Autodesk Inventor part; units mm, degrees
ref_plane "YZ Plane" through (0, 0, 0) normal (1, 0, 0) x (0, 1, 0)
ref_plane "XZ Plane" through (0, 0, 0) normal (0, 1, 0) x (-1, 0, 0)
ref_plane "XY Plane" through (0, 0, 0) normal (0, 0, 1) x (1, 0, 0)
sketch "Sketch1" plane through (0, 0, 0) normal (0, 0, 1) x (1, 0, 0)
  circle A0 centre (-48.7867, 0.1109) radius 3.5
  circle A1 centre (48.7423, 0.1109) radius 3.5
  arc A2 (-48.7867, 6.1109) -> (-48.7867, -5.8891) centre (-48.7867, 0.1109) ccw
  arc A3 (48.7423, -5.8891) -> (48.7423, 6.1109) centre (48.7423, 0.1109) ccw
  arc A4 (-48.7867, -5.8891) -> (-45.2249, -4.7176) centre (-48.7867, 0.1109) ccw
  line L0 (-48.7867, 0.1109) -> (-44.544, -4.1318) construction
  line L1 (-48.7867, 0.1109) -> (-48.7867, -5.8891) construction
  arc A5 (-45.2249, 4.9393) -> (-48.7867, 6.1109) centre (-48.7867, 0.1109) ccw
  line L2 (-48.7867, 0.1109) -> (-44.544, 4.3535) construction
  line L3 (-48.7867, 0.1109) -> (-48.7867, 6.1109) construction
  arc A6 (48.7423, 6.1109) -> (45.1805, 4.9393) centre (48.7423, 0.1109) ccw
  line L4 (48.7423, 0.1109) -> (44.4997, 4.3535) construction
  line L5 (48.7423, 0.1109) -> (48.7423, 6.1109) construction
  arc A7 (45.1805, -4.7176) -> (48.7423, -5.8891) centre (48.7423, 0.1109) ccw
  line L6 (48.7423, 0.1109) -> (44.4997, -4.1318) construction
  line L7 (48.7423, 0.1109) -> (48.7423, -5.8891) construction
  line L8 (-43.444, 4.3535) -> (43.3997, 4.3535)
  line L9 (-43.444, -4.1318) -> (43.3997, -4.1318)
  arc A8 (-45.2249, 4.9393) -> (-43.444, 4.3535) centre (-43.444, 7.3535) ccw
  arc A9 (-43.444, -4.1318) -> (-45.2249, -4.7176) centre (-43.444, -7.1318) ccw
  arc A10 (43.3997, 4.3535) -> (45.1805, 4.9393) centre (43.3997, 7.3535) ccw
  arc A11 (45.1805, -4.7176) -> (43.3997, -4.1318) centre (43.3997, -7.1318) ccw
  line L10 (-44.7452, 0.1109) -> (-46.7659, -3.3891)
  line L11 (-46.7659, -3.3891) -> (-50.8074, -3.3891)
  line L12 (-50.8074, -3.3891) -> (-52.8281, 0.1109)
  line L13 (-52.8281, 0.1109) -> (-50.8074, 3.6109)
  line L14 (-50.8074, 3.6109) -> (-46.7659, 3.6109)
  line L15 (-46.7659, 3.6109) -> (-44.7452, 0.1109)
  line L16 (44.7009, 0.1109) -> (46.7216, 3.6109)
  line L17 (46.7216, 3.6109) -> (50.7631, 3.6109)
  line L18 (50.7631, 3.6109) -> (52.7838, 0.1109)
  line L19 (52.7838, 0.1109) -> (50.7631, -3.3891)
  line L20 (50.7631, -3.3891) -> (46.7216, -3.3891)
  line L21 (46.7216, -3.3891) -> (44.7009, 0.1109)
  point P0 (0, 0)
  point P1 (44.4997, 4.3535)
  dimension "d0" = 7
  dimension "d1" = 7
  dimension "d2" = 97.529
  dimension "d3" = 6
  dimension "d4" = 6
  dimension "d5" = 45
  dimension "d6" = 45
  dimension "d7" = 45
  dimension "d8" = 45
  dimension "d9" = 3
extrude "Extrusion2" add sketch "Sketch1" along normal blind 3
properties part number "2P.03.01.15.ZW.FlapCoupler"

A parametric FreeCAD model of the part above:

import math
import FreeCAD as App
import Part
import Sketcher

V = App.Vector
Q = App.Units.Quantity

doc = App.newDocument("Part")
body = doc.addObject("PartDesign::Body", "Body")

# Sketch on XY plane
sketch1 = body.newObject("Sketcher::SketchObject", "Sketch")
sketch1.AttachmentSupport = (doc.getObject("XY_Plane"), [""])
sketch1.MapMode = "FlatFace"
sketch1.addGeometry(Part.ArcOfCircle(Part.Circle(V(-48.8, 0.1, 0), V(0, 0, 1), 6), math.radians(54), math.radians(90)), False)
sketch1.addGeometry(Part.ArcOfCircle(Part.Circle(V(-48.8, 0.1, 0), V(0, 0, 1), 6), math.radians(90), math.radians(270)), False)
sketch1.addGeometry(Part.ArcOfCircle(Part.Circle(V(-48.8, 0.1, 0), V(0, 0, 1), 6), math.radians(-90), math.radians(-54)), False)
sketch1.addGeometry(Part.ArcOfCircle(Part.Circle(V(-43.4, -7.1, 0), V(0, 0, 1), 3), math.radians(90), math.radians(126)), False)
sketch1.addGeometry(Part.LineSegment(V(-43.4, -4.1, 0), V(43.4, -4.1, 0)), False)
sketch1.addGeometry(Part.ArcOfCircle(Part.Circle(V(43.4, -7.1, 0), V(0, 0, 1), 3), math.radians(54), math.radians(90)), False)
sketch1.addGeometry(Part.ArcOfCircle(Part.Circle(V(48.7, 0.1, 0), V(0, 0, 1), 6), math.radians(-126), math.radians(-90)), False)
sketch1.addGeometry(Part.ArcOfCircle(Part.Circle(V(48.7, 0.1, 0), V(0, 0, 1), 6), math.radians(-90), math.radians(90)), False)
sketch1.addGeometry(Part.ArcOfCircle(Part.Circle(V(48.7, 0.1, 0), V(0, 0, 1), 6), math.radians(90), math.radians(126)), False)
sketch1.addGeometry(Part.ArcOfCircle(Part.Circle(V(43.4, 7.4, 0), V(0, 0, 1), 3), math.radians(-90), math.radians(-54)), False)
sketch1.addGeometry(Part.LineSegment(V(43.4, 4.4, 0), V(-43.4, 4.4, 0)), False)
sketch1.addGeometry(Part.ArcOfCircle(Part.Circle(V(-43.4, 7.4, 0), V(0, 0, 1), 3), math.radians(-126), math.radians(-90)), False)
sketch1.addGeometry(Part.LineSegment(V(-46.8, 3.6, 0), V(-44.7, 0.1, 0)), False)
sketch1.addGeometry(Part.LineSegment(V(-44.7, 0.1, 0), V(-46.8, -3.4, 0)), False)
sketch1.addGeometry(Part.LineSegment(V(-46.8, -3.4, 0), V(-50.8, -3.4, 0)), False)
sketch1.addGeometry(Part.LineSegment(V(-50.8, -3.4, 0), V(-52.8, 0.1, 0)), False)
sketch1.addGeometry(Part.LineSegment(V(-52.8, 0.1, 0), V(-50.8, 3.6, 0)), False)
sketch1.addGeometry(Part.LineSegment(V(-50.8, 3.6, 0), V(-46.8, 3.6, 0)), False)
sketch1.addGeometry(Part.LineSegment(V(50.8, 3.6, 0), V(52.8, 0.1, 0)), False)
sketch1.addGeometry(Part.LineSegment(V(52.8, 0.1, 0), V(50.8, -3.4, 0)), False)
sketch1.addGeometry(Part.LineSegment(V(50.8, -3.4, 0), V(46.7, -3.4, 0)), False)
sketch1.addGeometry(Part.LineSegment(V(46.7, -3.4, 0), V(44.7, 0.1, 0)), False)
sketch1.addGeometry(Part.LineSegment(V(44.7, 0.1, 0), V(46.7, 3.6, 0)), False)
sketch1.addGeometry(Part.LineSegment(V(46.7, 3.6, 0), V(50.8, 3.6, 0)), False)
sketch1.addConstraint(Sketcher.Constraint("Tangent", 0, 2, 1, 1))
sketch1.addConstraint(Sketcher.Constraint("Tangent", 1, 2, 2, 1))
sketch1.addConstraint(Sketcher.Constraint("Tangent", 2, 2, 3, 2))
sketch1.addConstraint(Sketcher.Constraint("Tangent", 3, 1, 4, 1))
sketch1.addConstraint(Sketcher.Constraint("Tangent", 4, 2, 5, 2))
sketch1.addConstraint(Sketcher.Constraint("Tangent", 5, 1, 6, 1))
sketch1.addConstraint(Sketcher.Constraint("Tangent", 6, 2, 7, 1))
sketch1.addConstraint(Sketcher.Constraint("Tangent", 7, 2, 8, 1))
sketch1.addConstraint(Sketcher.Constraint("Tangent", 8, 2, 9, 2))
sketch1.addConstraint(Sketcher.Constraint("Tangent", 9, 1, 10, 1))
sketch1.addConstraint(Sketcher.Constraint("Tangent", 10, 2, 11, 2))
sketch1.addConstraint(Sketcher.Constraint("Tangent", 11, 1, 0, 1))
sketch1.addConstraint(Sketcher.Constraint("Coincident", 12, 2, 13, 1))
sketch1.addConstraint(Sketcher.Constraint("Coincident", 13, 2, 14, 1))
sketch1.addConstraint(Sketcher.Constraint("Coincident", 14, 2, 15, 1))
sketch1.addConstraint(Sketcher.Constraint("Coincident", 15, 2, 16, 1))
sketch1.addConstraint(Sketcher.Constraint("Coincident", 16, 2, 17, 1))
sketch1.addConstraint(Sketcher.Constraint("Coincident", 17, 2, 12, 1))
sketch1.addConstraint(Sketcher.Constraint("Coincident", 18, 2, 19, 1))
sketch1.addConstraint(Sketcher.Constraint("Coincident", 19, 2, 20, 1))
sketch1.addConstraint(Sketcher.Constraint("Coincident", 20, 2, 21, 1))
sketch1.addConstraint(Sketcher.Constraint("Coincident", 21, 2, 22, 1))
sketch1.addConstraint(Sketcher.Constraint("Coincident", 22, 2, 23, 1))
sketch1.addConstraint(Sketcher.Constraint("Coincident", 23, 2, 18, 1))
sketch1.addConstraint(Sketcher.Constraint("Horizontal", 4))
sketch1.addConstraint(Sketcher.Constraint("Horizontal", 10))
sketch1.addConstraint(Sketcher.Constraint("Horizontal", 14))
sketch1.addConstraint(Sketcher.Constraint("Horizontal", 17))
sketch1.addConstraint(Sketcher.Constraint("Horizontal", 20))
sketch1.addConstraint(Sketcher.Constraint("Horizontal", 23))
sketch1.addConstraint(Sketcher.Constraint("Equal", 0, 1))
sketch1.addConstraint(Sketcher.Constraint("Equal", 1, 2))
sketch1.addConstraint(Sketcher.Constraint("Equal", 3, 5))
sketch1.addConstraint(Sketcher.Constraint("Equal", 2, 6))
sketch1.addConstraint(Sketcher.Constraint("Equal", 6, 7))
sketch1.addConstraint(Sketcher.Constraint("Equal", 7, 8))
sketch1.addConstraint(Sketcher.Constraint("Equal", 5, 9))
sketch1.addConstraint(Sketcher.Constraint("Equal", 9, 11))
sketch1.addConstraint(Sketcher.Constraint("Parallel", 12, 15))
sketch1.addConstraint(Sketcher.Constraint("Parallel", 13, 16))
sketch1.addConstraint(Sketcher.Constraint("Parallel", 15, 18))
sketch1.addConstraint(Sketcher.Constraint("Parallel", 16, 19))
sketch1.addConstraint(Sketcher.Constraint("Parallel", 18, 21))
sketch1.addConstraint(Sketcher.Constraint("Parallel", 19, 22))
sketch1.addConstraint(Sketcher.Constraint("Horizontal", 2, 3, 6, 3))
sketch1.addConstraint(Sketcher.Constraint("Horizontal", 8, 3, 12, 2))
sketch1.addConstraint(Sketcher.Constraint("Horizontal", 12, 2, 15, 2))
sketch1.addConstraint(Sketcher.Constraint("Horizontal", 15, 2, 18, 2))
sketch1.addConstraint(Sketcher.Constraint("Horizontal", 14, 2, 19, 2))
sketch1.addConstraint(Sketcher.Constraint("Horizontal", 18, 2, 21, 2))
sketch1.addConstraint(Sketcher.Constraint("Horizontal", 17, 2, 22, 2))
sketch1.addConstraint(Sketcher.Constraint("Vertical", 5, 3, 9, 3))
sketch1.addConstraint(Sketcher.Constraint("Vertical", 2, 3, 0, 2))
sketch1.addConstraint(Sketcher.Constraint("Vertical", 0, 2, 1, 2))
sketch1.addConstraint(Sketcher.Constraint("Vertical", 8, 3, 6, 2))
sketch1.addConstraint(Sketcher.Constraint("Vertical", 6, 2, 7, 2))
sketch1.addConstraint(Sketcher.Constraint("Vertical", 14, 2, 16, 2))
sketch1.addConstraint(Sketcher.Constraint("Vertical", 13, 2, 17, 2))
sketch1.addConstraint(Sketcher.Constraint("Equal", 17, 20))
sketch1.addConstraint(Sketcher.Constraint("Radius", 0, Q("6 mm")))
sketch1.addConstraint(Sketcher.Constraint("Radius", 3, Q("3 mm")))
sketch1.addConstraint(Sketcher.Constraint("Angle", 12, Q("-60.0003 deg")))
sketch1.addConstraint(Sketcher.Constraint("DistanceX", 0, 3, 6, 3, Q("97.529 mm")))
sketch1.addConstraint(Sketcher.Constraint("DistanceY", 1, 2, 13, 2, Q("2.5 mm")))
sketch1.addConstraint(Sketcher.Constraint("DistanceX", 4, 1, 4, 2, Q("86.8437 mm")))
sketch1.addConstraint(Sketcher.Constraint("DistanceX", 14, 2, 14, 1, Q("4.0415 mm")))
sketch1.addConstraint(Sketcher.Constraint("DistanceY", -1, 1, 0, 3, Q("0.111 mm")))
sketch1.addConstraint(Sketcher.Constraint("DistanceX", 3, 3, -1, 1, Q("43.444 mm")))
sketch1.addConstraint(Sketcher.Constraint("DistanceX", 13, 2, -1, 1, Q("46.766 mm")))
sketch1.addConstraint(Sketcher.Constraint("DistanceX", -1, 1, 19, 2, Q("50.763 mm")))
pad1 = body.newObject("PartDesign::Pad", "Pad")
pad1.Profile = sketch1
pad1.Length = 3

doc.recompute()
